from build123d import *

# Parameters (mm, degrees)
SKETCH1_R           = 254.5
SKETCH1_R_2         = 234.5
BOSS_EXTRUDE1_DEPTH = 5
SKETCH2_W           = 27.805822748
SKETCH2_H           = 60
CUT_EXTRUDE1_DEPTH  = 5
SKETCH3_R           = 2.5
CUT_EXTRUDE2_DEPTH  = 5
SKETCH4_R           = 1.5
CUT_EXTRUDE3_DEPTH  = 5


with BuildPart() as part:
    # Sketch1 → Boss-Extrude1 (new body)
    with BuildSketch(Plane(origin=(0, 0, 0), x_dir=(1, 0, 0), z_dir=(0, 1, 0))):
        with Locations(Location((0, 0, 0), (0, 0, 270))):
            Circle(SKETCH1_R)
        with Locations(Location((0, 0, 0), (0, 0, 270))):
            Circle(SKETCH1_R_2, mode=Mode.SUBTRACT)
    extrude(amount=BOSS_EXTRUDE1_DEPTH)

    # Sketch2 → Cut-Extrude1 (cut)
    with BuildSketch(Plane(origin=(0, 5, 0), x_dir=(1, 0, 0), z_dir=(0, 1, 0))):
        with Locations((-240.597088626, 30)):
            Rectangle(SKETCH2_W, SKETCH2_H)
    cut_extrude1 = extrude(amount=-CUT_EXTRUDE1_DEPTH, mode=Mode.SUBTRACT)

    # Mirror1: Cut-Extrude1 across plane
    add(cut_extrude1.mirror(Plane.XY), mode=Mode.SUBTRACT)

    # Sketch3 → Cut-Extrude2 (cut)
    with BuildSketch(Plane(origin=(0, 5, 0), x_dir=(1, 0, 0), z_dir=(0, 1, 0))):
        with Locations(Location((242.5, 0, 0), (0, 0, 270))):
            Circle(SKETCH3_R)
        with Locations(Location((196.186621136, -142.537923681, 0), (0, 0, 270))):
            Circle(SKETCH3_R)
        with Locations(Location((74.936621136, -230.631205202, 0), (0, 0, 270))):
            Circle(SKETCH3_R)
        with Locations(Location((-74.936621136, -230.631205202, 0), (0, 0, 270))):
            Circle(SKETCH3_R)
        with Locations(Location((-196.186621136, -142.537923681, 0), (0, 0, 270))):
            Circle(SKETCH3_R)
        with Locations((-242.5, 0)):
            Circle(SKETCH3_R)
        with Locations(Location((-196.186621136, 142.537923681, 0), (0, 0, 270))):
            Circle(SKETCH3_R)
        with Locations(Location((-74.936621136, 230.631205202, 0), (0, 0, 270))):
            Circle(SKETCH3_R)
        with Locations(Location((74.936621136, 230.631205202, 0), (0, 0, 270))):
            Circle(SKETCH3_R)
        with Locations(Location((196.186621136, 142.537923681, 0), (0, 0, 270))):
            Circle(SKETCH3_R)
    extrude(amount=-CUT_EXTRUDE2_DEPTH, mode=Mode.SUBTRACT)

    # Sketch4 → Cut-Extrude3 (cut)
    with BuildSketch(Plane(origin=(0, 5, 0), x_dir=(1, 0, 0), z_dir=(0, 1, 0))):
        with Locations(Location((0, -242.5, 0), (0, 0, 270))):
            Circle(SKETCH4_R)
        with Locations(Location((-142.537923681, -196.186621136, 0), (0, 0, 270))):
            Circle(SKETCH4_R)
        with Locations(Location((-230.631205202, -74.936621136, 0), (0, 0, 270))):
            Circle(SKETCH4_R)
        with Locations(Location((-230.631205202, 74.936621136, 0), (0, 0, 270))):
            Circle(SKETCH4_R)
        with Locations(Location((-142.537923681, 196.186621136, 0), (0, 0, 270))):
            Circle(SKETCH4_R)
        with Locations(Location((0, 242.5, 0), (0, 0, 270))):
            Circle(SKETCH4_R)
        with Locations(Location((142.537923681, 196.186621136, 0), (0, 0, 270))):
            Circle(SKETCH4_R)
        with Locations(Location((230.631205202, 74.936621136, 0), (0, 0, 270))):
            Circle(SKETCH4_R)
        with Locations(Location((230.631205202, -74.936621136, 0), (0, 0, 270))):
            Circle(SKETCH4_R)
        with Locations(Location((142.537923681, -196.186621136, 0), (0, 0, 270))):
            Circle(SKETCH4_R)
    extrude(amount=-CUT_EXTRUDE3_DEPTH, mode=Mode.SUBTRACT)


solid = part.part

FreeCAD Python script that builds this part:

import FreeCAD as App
import Part
import Sketcher


def add_polygon(sketch, points):
    """Adds a closed chain of lines whose ends are joined by coincident constraints."""
    first, n = sketch.GeometryCount, len(points)
    for a, b in zip(points, points[1:] + points[:1]):
        sketch.addGeometry(Part.LineSegment(App.Vector(*a, 0), App.Vector(*b, 0)), False)
    for i in range(n):
        sketch.addConstraint(Sketcher.Constraint("Coincident", first + i, 2, first + (i + 1) % n, 1))

doc = App.newDocument("Part")
body = doc.addObject("PartDesign::Body", "Body")

sketch1 = doc.addObject("Sketcher::SketchObject", "Sketch")
body.addObject(sketch1)
sketch1.AttachmentSupport = (doc.XZ_Plane, [""])
sketch1.MapMode = "FlatFace"
sketch1.addGeometry([
    Part.Circle(App.Vector(0, 0, 0), App.Vector(0, 0, 1), 254.5),
    Part.Circle(App.Vector(0, 0, 0), App.Vector(0, 0, 1), 234.5),
], False)
sketch1.addConstraint([
    Sketcher.Constraint("Coincident", 0, 3, -1, 1),
    Sketcher.Constraint("Coincident", 1, 3, -1, 1),
    Sketcher.Constraint("Diameter", 0, 509.0),
    Sketcher.Constraint("Diameter", 1, 469.0),
])
pad1 = doc.addObject("PartDesign::Pad", "Pad")
body.addObject(pad1)
pad1.Profile = sketch1
pad1.Length = 5
pad1.Reversed = True

sketch2 = doc.addObject("Sketcher::SketchObject", "Sketch001")
body.addObject(sketch2)
sketch2.AttachmentSupport = (doc.XZ_Plane, [""])
sketch2.MapMode = "FlatFace"
sketch2.AttachmentOffset = App.Placement(App.Vector(0, 0, -5), App.Rotation())
add_polygon(sketch2, [(-254.5, -60), (-254.5, 0), (-226.694177, 0), (-226.694177, -60)])
sketch2.addConstraint([
    Sketcher.Constraint("Vertical", 0),
    Sketcher.Constraint("Horizontal", 1),
    Sketcher.Constraint("Vertical", 2),
    Sketcher.Constraint("Horizontal", 3),
    Sketcher.Constraint("PointOnObject", 0, 2, -1),
    Sketcher.Constraint("DistanceY", 0, 1, 0, 2, 60.0),
    Sketcher.Constraint("DistanceX", 0, 2, -1, 1, 254.5),
    Sketcher.Constraint("DistanceX", 1, 1, 1, 2, 27.805823),
])
pocket1 = doc.addObject("PartDesign::Pocket", "Pocket")
body.addObject(pocket1)
pocket1.Profile = sketch2
pocket1.Length = 5
pocket1.Reversed = True
doc.recompute()

mirrored = doc.addObject("PartDesign::Mirrored", "Mirrored")
body.addObject(mirrored)
mirrored.Originals = [pocket1]
mirrored.MirrorPlane = (doc.XY_Plane, [""])
body.Tip = mirrored

sketch3 = doc.addObject("Sketcher::SketchObject", "Sketch002")
body.addObject(sketch3)
sketch3.AttachmentSupport = (doc.XZ_Plane, [""])
sketch3.MapMode = "FlatFace"
sketch3.AttachmentOffset = App.Placement(App.Vector(0, 0, -5), App.Rotation())
sketch3.addGeometry([
    Part.Circle(App.Vector(242.5, 0, 0), App.Vector(0, 0, 1), 2.5),
    Part.Circle(App.Vector(196.186621, 142.537924, 0), App.Vector(0, 0, 1), 2.5),
    Part.Circle(App.Vector(74.936621, 230.631205, 0), App.Vector(0, 0, 1), 2.5),
    Part.Circle(App.Vector(-74.936621, 230.631205, 0), App.Vector(0, 0, 1), 2.5),
    Part.Circle(App.Vector(-196.186621, 142.537924, 0), App.Vector(0, 0, 1), 2.5),
    Part.Circle(App.Vector(-242.5, 0, 0), App.Vector(0, 0, 1), 2.5),
    Part.Circle(App.Vector(-196.186621, -142.537924, 0), App.Vector(0, 0, 1), 2.5),
    Part.Circle(App.Vector(-74.936621, -230.631205, 0), App.Vector(0, 0, 1), 2.5),
    Part.Circle(App.Vector(74.936621, -230.631205, 0), App.Vector(0, 0, 1), 2.5),
    Part.Circle(App.Vector(196.186621, -142.537924, 0), App.Vector(0, 0, 1), 2.5),
], False)
sketch3.addConstraint([
    Sketcher.Constraint("Equal", 0, 1),
    Sketcher.Constraint("Equal", 1, 2),
    Sketcher.Constraint("Equal", 2, 3),
    Sketcher.Constraint("Equal", 3, 4),
    Sketcher.Constraint("Equal", 4, 5),
    Sketcher.Constraint("Equal", 5, 6),
    Sketcher.Constraint("Equal", 6, 7),
    Sketcher.Constraint("Equal", 7, 8),
    Sketcher.Constraint("Equal", 8, 9),
    Sketcher.Constraint("Symmetric", 0, 3, 5, 3, -1, 1),
    Sketcher.Constraint("Symmetric", 1, 3, 6, 3, -1, 1),
    Sketcher.Constraint("Symmetric", 2, 3, 7, 3, -1, 1),
    Sketcher.Constraint("Symmetric", 3, 3, 8, 3, -1, 1),
    Sketcher.Constraint("Symmetric", 4, 3, 9, 3, -1, 1),
    Sketcher.Constraint("Symmetric", 2, 3, 3, 3, -2),
    Sketcher.Constraint("Symmetric", 1, 3, 4, 3, -2),
    Sketcher.Constraint("PointOnObject", 0, 3, -1),
    Sketcher.Constraint("Diameter", 0, 5.0),
    Sketcher.Constraint("DistanceX", 5, 3, 0, 3, 485.0),
    Sketcher.Constraint("DistanceX", 2, 3, 1, 3, 121.25),
    Sketcher.Constraint("DistanceX", -1, 1, 1, 3, 196.186621),
    Sketcher.Constraint("DistanceY", 1, 3, 2, 3, 88.093282),
    Sketcher.Constraint("DistanceY", 6, 3, 3, 3, 373.169129),
])
pocket2 = doc.addObject("PartDesign::Pocket", "Pocket001")
body.addObject(pocket2)
pocket2.Profile = sketch3
pocket2.Length = 5
pocket2.Reversed = True

sketch4 = doc.addObject("Sketcher::SketchObject", "Sketch003")
body.addObject(sketch4)
sketch4.AttachmentSupport = (doc.XZ_Plane, [""])
sketch4.MapMode = "FlatFace"
sketch4.AttachmentOffset = App.Placement(App.Vector(0, 0, -5), App.Rotation())
sketch4.addGeometry([
    Part.Circle(App.Vector(0, 242.5, 0), App.Vector(0, 0, 1), 1.5),
    Part.Circle(App.Vector(-142.537924, 196.186621, 0), App.Vector(0, 0, 1), 1.5),
    Part.Circle(App.Vector(-230.631205, 74.936621, 0), App.Vector(0, 0, 1), 1.5),
    Part.Circle(App.Vector(-230.631205, -74.936621, 0), App.Vector(0, 0, 1), 1.5),
    Part.Circle(App.Vector(-142.537924, -196.186621, 0), App.Vector(0, 0, 1), 1.5),
    Part.Circle(App.Vector(0, -242.5, 0), App.Vector(0, 0, 1), 1.5),
    Part.Circle(App.Vector(142.537924, -196.186621, 0), App.Vector(0, 0, 1), 1.5),
    Part.Circle(App.Vector(230.631205, -74.936621, 0), App.Vector(0, 0, 1), 1.5),
    Part.Circle(App.Vector(230.631205, 74.936621, 0), App.Vector(0, 0, 1), 1.5),
    Part.Circle(App.Vector(142.537924, 196.186621, 0), App.Vector(0, 0, 1), 1.5),
], False)
sketch4.addConstraint([
    Sketcher.Constraint("Equal", 0, 1),
    Sketcher.Constraint("Equal", 1, 2),
    Sketcher.Constraint("Equal", 2, 3),
    Sketcher.Constraint("Equal", 3, 4),
    Sketcher.Constraint("Equal", 4, 5),
    Sketcher.Constraint("Equal", 5, 6),
    Sketcher.Constraint("Equal", 6, 7),
    Sketcher.Constraint("Equal", 7, 8),
    Sketcher.Constraint("Equal", 8, 9),
    Sketcher.Constraint("Symmetric", 0, 3, 5, 3, -1, 1),
    Sketcher.Constraint("Symmetric", 1, 3, 6, 3, -1, 1),
    Sketcher.Constraint("Symmetric", 2, 3, 7, 3, -1, 1),
    Sketcher.Constraint("Symmetric", 3, 3, 8, 3, -1, 1),
    Sketcher.Constraint("Symmetric", 4, 3, 9, 3, -1, 1),
    Sketcher.Constraint("Symmetric", 4, 3, 6, 3, -2),
    Sketcher.Constraint("Symmetric", 3, 3, 7, 3, -2),
    Sketcher.Constraint("PointOnObject", 0, 3, -2),
    Sketcher.Constraint("Diameter", 0, 3.0),
    Sketcher.Constraint("DistanceY", 5, 3, 0, 3, 485.0),
    Sketcher.Constraint("DistanceY", 2, 3, 1, 3, 121.25),
    Sketcher.Constraint("DistanceY", -1, 1, 1, 3, 196.186621),
    Sketcher.Constraint("DistanceX", 2, 3, 1, 3, 88.093282),
    Sketcher.Constraint("DistanceX", 3, 3, 6, 3, 373.169129),
])
pocket3 = doc.addObject("PartDesign::Pocket", "Pocket002")
body.addObject(pocket3)
pocket3.Profile = sketch4
pocket3.Length = 5
pocket3.Reversed = True

doc.recompute()
